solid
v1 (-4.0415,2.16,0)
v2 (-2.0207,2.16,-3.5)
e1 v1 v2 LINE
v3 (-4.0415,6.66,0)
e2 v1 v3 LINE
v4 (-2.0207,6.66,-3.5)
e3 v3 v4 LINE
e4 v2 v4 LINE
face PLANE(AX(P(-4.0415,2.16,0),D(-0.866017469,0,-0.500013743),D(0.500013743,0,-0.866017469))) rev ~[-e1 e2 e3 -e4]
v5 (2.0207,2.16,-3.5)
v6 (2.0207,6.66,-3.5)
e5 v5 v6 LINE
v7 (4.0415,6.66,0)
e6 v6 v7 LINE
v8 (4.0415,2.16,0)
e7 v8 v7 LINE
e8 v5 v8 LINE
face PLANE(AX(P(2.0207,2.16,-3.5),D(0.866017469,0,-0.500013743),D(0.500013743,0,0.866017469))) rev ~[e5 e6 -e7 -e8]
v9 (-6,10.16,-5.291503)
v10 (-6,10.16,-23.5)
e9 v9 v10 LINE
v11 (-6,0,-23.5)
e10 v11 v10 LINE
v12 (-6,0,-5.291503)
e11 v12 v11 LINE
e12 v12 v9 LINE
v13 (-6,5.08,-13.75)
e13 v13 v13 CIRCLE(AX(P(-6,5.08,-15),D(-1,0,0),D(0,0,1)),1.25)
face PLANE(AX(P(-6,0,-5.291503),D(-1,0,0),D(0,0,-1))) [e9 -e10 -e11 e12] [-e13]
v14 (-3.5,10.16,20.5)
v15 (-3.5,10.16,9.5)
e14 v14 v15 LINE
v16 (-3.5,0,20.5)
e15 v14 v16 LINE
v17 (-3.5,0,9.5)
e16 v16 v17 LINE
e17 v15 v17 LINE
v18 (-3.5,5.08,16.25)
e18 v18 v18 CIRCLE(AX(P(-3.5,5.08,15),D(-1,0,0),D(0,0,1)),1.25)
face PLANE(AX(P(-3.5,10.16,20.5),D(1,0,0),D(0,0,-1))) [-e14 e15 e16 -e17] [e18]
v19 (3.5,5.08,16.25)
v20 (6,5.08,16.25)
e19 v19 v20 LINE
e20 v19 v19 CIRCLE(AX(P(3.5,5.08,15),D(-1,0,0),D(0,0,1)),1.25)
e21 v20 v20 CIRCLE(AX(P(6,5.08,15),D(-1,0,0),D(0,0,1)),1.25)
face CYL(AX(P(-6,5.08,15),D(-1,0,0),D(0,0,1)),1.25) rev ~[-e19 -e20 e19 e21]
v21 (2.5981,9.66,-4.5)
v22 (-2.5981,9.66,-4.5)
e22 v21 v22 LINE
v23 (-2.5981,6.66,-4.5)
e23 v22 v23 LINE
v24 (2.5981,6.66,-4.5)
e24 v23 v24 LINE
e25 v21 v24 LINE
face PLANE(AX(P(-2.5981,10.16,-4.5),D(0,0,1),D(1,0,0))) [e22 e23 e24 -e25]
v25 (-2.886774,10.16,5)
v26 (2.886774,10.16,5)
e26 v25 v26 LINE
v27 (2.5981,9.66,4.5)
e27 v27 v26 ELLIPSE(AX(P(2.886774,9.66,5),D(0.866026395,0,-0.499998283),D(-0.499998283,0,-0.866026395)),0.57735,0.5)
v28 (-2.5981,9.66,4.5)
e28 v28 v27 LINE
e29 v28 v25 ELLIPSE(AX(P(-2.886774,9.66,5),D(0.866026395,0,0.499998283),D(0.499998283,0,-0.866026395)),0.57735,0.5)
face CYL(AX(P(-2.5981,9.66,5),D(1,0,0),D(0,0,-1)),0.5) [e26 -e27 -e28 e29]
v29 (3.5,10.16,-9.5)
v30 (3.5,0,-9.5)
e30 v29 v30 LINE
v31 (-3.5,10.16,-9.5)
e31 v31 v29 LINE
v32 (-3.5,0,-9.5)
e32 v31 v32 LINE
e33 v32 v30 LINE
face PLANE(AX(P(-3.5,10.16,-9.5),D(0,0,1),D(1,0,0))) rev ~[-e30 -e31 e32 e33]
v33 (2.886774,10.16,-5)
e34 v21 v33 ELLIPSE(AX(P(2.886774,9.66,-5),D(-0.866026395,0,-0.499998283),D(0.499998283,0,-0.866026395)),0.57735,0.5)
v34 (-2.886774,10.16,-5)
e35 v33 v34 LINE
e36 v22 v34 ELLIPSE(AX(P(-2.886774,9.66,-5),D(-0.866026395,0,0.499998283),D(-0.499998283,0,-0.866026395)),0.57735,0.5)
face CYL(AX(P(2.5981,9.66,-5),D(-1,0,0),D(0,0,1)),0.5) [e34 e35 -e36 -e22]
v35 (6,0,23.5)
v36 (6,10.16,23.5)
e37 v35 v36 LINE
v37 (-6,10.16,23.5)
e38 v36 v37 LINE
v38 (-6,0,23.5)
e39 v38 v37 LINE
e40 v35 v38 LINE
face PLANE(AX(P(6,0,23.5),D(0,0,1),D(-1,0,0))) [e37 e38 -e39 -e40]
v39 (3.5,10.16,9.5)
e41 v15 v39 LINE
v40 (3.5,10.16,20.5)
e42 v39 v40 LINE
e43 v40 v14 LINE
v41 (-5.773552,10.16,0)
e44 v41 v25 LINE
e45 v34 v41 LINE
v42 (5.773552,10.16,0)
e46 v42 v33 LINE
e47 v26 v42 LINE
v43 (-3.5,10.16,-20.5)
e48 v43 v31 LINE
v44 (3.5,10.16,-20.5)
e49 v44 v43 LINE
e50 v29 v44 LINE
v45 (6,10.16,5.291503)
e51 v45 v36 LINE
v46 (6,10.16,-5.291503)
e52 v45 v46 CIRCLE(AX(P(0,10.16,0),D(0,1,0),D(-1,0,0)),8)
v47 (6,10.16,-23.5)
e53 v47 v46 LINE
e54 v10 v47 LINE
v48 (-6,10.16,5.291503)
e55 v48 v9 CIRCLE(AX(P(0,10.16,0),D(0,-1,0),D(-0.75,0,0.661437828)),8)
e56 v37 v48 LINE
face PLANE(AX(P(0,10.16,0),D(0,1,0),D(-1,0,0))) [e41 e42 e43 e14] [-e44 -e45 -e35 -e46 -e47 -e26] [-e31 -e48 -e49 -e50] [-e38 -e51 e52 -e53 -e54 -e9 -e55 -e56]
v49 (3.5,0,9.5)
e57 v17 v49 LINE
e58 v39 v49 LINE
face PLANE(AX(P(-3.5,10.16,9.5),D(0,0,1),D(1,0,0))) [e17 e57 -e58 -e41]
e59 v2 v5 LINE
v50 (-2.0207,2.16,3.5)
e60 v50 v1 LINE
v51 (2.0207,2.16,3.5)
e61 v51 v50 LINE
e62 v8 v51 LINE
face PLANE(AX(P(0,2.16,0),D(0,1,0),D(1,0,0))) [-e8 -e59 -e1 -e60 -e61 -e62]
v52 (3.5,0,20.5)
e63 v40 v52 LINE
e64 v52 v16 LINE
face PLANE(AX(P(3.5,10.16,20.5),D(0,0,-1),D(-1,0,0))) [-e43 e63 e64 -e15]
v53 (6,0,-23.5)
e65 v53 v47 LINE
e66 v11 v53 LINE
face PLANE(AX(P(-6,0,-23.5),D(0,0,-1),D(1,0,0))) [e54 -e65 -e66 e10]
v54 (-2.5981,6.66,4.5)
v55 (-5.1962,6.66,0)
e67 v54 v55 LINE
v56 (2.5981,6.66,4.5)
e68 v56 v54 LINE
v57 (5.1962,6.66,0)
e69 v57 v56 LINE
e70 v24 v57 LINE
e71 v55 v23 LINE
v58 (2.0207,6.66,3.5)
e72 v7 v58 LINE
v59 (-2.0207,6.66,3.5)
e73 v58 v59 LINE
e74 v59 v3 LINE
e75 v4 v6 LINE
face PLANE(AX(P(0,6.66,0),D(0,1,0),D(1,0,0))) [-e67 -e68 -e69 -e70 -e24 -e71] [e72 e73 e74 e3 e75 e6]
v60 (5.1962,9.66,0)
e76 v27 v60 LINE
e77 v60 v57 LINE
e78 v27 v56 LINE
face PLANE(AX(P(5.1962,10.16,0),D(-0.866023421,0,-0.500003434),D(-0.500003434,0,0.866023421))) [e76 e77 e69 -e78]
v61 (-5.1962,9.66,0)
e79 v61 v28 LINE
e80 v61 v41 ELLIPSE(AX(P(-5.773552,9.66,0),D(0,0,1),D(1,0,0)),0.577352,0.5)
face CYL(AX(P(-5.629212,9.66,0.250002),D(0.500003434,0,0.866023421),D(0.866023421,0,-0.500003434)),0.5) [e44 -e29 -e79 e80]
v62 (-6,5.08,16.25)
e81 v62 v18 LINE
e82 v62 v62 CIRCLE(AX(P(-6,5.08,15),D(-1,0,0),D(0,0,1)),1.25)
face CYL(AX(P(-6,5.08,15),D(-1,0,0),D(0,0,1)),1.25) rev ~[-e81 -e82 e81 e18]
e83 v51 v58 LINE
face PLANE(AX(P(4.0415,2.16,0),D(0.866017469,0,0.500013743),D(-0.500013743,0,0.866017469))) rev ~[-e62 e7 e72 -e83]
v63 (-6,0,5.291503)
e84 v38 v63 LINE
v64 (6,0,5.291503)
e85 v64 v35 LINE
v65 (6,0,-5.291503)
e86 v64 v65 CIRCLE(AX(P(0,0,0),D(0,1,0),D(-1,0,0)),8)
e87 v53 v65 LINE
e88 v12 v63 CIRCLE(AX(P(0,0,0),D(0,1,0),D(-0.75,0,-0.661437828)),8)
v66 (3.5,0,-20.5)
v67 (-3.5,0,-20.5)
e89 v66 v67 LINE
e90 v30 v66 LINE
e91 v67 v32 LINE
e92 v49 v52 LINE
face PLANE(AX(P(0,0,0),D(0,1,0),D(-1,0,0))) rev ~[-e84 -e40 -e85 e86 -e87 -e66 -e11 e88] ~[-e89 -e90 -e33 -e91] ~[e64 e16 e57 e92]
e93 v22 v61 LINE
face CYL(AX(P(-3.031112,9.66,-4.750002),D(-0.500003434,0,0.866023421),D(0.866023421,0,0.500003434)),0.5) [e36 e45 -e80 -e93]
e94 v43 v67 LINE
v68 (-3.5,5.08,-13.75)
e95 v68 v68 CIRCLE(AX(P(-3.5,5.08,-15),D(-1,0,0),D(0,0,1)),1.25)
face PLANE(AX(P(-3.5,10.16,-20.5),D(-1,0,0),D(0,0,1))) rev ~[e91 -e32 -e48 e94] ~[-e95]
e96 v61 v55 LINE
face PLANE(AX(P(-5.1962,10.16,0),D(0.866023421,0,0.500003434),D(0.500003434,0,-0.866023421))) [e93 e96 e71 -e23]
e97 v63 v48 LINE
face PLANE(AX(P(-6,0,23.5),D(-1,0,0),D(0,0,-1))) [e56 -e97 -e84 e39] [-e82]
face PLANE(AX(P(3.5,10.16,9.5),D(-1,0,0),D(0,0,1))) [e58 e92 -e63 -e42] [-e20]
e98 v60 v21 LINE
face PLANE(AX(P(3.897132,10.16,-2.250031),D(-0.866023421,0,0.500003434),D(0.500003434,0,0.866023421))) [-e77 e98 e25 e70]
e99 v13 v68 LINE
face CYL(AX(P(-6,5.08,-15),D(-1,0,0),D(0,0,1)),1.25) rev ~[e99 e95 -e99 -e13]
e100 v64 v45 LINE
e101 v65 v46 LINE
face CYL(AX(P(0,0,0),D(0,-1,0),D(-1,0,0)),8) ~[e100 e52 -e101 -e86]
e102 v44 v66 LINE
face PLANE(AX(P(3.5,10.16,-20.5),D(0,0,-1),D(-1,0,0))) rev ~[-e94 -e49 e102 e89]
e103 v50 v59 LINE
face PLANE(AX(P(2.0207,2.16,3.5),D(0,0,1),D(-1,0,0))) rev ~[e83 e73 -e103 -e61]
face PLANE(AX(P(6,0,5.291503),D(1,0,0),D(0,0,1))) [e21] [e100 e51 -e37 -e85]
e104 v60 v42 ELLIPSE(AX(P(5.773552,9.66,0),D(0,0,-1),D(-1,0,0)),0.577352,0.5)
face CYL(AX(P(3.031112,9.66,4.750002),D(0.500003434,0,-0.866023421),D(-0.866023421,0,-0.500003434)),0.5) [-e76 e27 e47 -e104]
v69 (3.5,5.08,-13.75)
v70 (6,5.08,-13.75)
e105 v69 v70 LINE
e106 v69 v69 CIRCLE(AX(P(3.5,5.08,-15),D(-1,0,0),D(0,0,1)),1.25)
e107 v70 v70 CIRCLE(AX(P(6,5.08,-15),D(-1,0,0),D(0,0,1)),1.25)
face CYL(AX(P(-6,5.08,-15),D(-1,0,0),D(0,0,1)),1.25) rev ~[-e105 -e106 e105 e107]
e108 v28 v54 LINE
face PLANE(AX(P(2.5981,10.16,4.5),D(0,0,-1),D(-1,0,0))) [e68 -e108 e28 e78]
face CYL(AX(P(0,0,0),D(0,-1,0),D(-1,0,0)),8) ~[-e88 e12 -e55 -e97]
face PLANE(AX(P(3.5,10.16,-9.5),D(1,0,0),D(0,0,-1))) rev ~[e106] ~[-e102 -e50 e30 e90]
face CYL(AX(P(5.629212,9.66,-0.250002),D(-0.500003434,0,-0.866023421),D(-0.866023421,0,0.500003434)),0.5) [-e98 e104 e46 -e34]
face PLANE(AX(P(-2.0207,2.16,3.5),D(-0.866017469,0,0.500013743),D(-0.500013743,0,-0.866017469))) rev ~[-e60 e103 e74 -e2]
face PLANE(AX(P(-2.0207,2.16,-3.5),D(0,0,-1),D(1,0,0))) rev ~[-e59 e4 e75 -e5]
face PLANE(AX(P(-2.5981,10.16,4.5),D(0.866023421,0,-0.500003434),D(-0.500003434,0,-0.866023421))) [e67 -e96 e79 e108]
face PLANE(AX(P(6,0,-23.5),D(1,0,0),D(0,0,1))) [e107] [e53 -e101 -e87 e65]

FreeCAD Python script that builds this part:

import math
import FreeCAD as App
import Part
import Sketcher
from FreeCAD import Vector
Q = App.Units.Quantity


def edges_at(feature, points):
    """Names of the edges that pass closest to the given points."""
    edges = feature.Shape.Edges
    near = lambda p: min(range(len(edges)), key=lambda i: edges[i].distToShape(Part.Vertex(*p))[0])
    return sorted({f"Edge{near(p) + 1}" for p in points})

doc = App.newDocument("Part")
body = doc.addObject("PartDesign::Body", "Body")

sketch1 = body.newObject("Sketcher::SketchObject", "Sketch")
sketch1.AttachmentSupport = (doc.getObject("XZ_Plane"), [""])
sketch1.MapMode = "FlatFace"
sketch1.addGeometry(Part.Circle(Vector(0, 0, 0), Vector(0, 0, 1), 8), False)
sketch1.addConstraint([
    Sketcher.Constraint("Coincident", 0, 3, -1, 1),
    Sketcher.Constraint("Diameter", 0, 16.0),
])
pad1 = body.newObject("PartDesign::Pad", "Pad")
pad1.Profile = sketch1
pad1.Length = 10.16
pad1.Reversed = True

sketch2 = body.newObject("Sketcher::SketchObject", "Sketch001")
sketch2.AttachmentSupport = (doc.getObject("XZ_Plane"), [""])
sketch2.MapMode = "FlatFace"
sketch2.addGeometry([
    Part.LineSegment(Vector(6, 5.291503, 0), Vector(6, 23.5, 0)),
    Part.LineSegment(Vector(6, 23.5, 0), Vector(-6, 23.5, 0)),
    Part.LineSegment(Vector(-6, 23.5, 0), Vector(-6, 5.291503, 0)),
    Part.ArcOfCircle(Part.Circle(Vector(0, 0, 0), Vector(0, 0, 1), 8), math.radians(41.409622), math.radians(138.590378)),
    Part.LineSegment(Vector(6, -23.5, 0), Vector(6, -5.291503, 0)),
    Part.ArcOfCircle(Part.Circle(Vector(0, 0, 0), Vector(0, 0, 1), 8), math.radians(-138.590378), math.radians(-41.409622)),
    Part.LineSegment(Vector(-6, -5.291503, 0), Vector(-6, -23.5, 0)),
    Part.LineSegment(Vector(-6, -23.5, 0), Vector(6, -23.5, 0)),
], False)
sketch2.addConstraint([
    Sketcher.Constraint("Coincident", 0, 2, 1, 1),
    Sketcher.Constraint("Coincident", 1, 2, 2, 1),
    Sketcher.Constraint("Coincident", 2, 2, 3, 2),
    Sketcher.Constraint("Coincident", 3, 1, 0, 1),
    Sketcher.Constraint("Coincident", 4, 2, 5, 2),
    Sketcher.Constraint("Coincident", 5, 1, 6, 1),
    Sketcher.Constraint("Coincident", 6, 2, 7, 1),
    Sketcher.Constraint("Coincident", 7, 2, 4, 1),
    Sketcher.Constraint("Vertical", 0),
    Sketcher.Constraint("Horizontal", 1),
    Sketcher.Constraint("Vertical", 2),
    Sketcher.Constraint("Vertical", 4),
    Sketcher.Constraint("Vertical", 6),
    Sketcher.Constraint("Horizontal", 7),
    Sketcher.Constraint("Coincident", 3, 3, -1, 1),
    Sketcher.Constraint("Coincident", 5, 3, -1, 1),
    Sketcher.Constraint("Equal", 3, 5),
    Sketcher.Constraint("Symmetric", 0, 2, 6, 2, -1, 1),
    Sketcher.Constraint("Horizontal", 2, 2, 3, 1),
    Sketcher.Constraint("Horizontal", 4, 2, 5, 1),
    Sketcher.Constraint("DistanceX", -1, 1, 0, 2, 6.0),
    Sketcher.Constraint("Radius", 3, 8.0),
    Sketcher.Constraint("DistanceY", -1, 1, 0, 2, 23.5),
])
pad2 = body.newObject("PartDesign::Pad", "Pad001")
pad2.Profile = sketch2
pad2.Length = 10.16
pad2.Reversed = True

sketch3 = body.newObject("Sketcher::SketchObject", "Sketch002")
sketch3.AttachmentSupport = (doc.getObject("XZ_Plane"), [""])
sketch3.MapMode = "FlatFace"
sketch3.AttachmentOffset = App.Placement(Vector(0, 0, -10.16), App.Rotation())
sketch3.addGeometry([
    Part.LineSegment(Vector(5.1962, 0, 0), Vector(2.5981, -4.5, 0)),
    Part.LineSegment(Vector(2.5981, -4.5, 0), Vector(-2.5981, -4.5, 0)),
    Part.LineSegment(Vector(-2.5981, -4.5, 0), Vector(-5.1962, 0, 0)),
    Part.LineSegment(Vector(-5.1962, 0, 0), Vector(-2.5981, 4.5, 0)),
    Part.LineSegment(Vector(-2.5981, 4.5, 0), Vector(2.5981, 4.5, 0)),
    Part.LineSegment(Vector(2.5981, 4.5, 0), Vector(5.1962, 0, 0)),
], False)
sketch3.addConstraint([
    Sketcher.Constraint("Coincident", 0, 2, 1, 1),
    Sketcher.Constraint("Coincident", 1, 2, 2, 1),
    Sketcher.Constraint("Coincident", 2, 2, 3, 1),
    Sketcher.Constraint("Coincident", 3, 2, 4, 1),
    Sketcher.Constraint("Coincident", 4, 2, 5, 1),
    Sketcher.Constraint("Coincident", 5, 2, 0, 1),
    Sketcher.Constraint("Horizontal", 1),
    Sketcher.Constraint("Horizontal", 4),
    Sketcher.Constraint("Symmetric", 0, 2, 3, 2, -1, 1),
    Sketcher.Constraint("Symmetric", 2, 2, 5, 2, -1, 1),
    Sketcher.Constraint("PointOnObject", 2, 2, -1),
    Sketcher.Constraint("Parallel", 2, 5),
    Sketcher.Constraint("Vertical", 1, 2, 3, 2),
    Sketcher.Constraint("DistanceY", 1, 2, 3, 2, 9.0),
    Sketcher.Constraint("Angle", 0, Q("-120.0002 deg")),
    Sketcher.Constraint("DistanceX", 1, 2, 1, 1, 5.1962),
])
pocket1 = body.newObject("PartDesign::Pocket", "Pocket")
pocket1.Profile = sketch3
pocket1.Length = 8
pocket1.Reversed = True

sketch4 = body.newObject("Sketcher::SketchObject", "Sketch003")
sketch4.AttachmentSupport = (doc.getObject("XZ_Plane"), [""])
sketch4.MapMode = "FlatFace"
sketch4.AttachmentOffset = App.Placement(Vector(0, 0, -2.16), App.Rotation())
sketch4.addGeometry([
    Part.LineSegment(Vector(2.5981, -4.5, 0), Vector(-2.5981, -4.5, 0)),
    Part.LineSegment(Vector(-2.5981, -4.5, 0), Vector(-5.1962, 0, 0)),
    Part.LineSegment(Vector(-5.1962, 0, 0), Vector(-2.5981, 4.5, 0)),
    Part.LineSegment(Vector(-2.5981, 4.5, 0), Vector(2.5981, 4.5, 0)),
    Part.LineSegment(Vector(2.5981, 4.5, 0), Vector(5.1962, 0, 0)),
    Part.LineSegment(Vector(5.1962, 0, 0), Vector(2.5981, -4.5, 0)),
    Part.LineSegment(Vector(-2.0207, -3.5, 0), Vector(2.0207, -3.5, 0)),
    Part.LineSegment(Vector(2.0207, -3.5, 0), Vector(4.0415, 0, 0)),
    Part.LineSegment(Vector(4.0415, 0, 0), Vector(2.0207, 3.5, 0)),
    Part.LineSegment(Vector(2.0207, 3.5, 0), Vector(-2.0207, 3.5, 0)),
    Part.LineSegment(Vector(-2.0207, 3.5, 0), Vector(-4.0415, 0, 0)),
    Part.LineSegment(Vector(-4.0415, 0, 0), Vector(-2.0207, -3.5, 0)),
], False)
sketch4.addConstraint([
    Sketcher.Constraint("Coincident", 0, 2, 1, 1),
    Sketcher.Constraint("Coincident", 1, 2, 2, 1),
    Sketcher.Constraint("Coincident", 2, 2, 3, 1),
    Sketcher.Constraint("Coincident", 3, 2, 4, 1),
    Sketcher.Constraint("Coincident", 4, 2, 5, 1),
    Sketcher.Constraint("Coincident", 5, 2, 0, 1),
    Sketcher.Constraint("Coincident", 6, 2, 7, 1),
    Sketcher.Constraint("Coincident", 7, 2, 8, 1),
    Sketcher.Constraint("Coincident", 8, 2, 9, 1),
    Sketcher.Constraint("Coincident", 9, 2, 10, 1),
    Sketcher.Constraint("Coincident", 10, 2, 11, 1),
    Sketcher.Constraint("Coincident", 11, 2, 6, 1),
    Sketcher.Constraint("Horizontal", 0),
    Sketcher.Constraint("Horizontal", 3),
    Sketcher.Constraint("Horizontal", 6),
    Sketcher.Constraint("Horizontal", 9),
    Sketcher.Constraint("Symmetric", 0, 2, 3, 2, -1, 1),
    Sketcher.Constraint("Symmetric", 1, 2, 4, 2, -1, 1),
    Sketcher.Constraint("Symmetric", 6, 2, 9, 2, -1, 1),
    Sketcher.Constraint("Symmetric", 7, 2, 10, 2, -1, 1),
    Sketcher.Constraint("PointOnObject", 1, 2, -1),
    Sketcher.Constraint("PointOnObject", 7, 2, -1),
    Sketcher.Constraint("Parallel", 2, 5),
    Sketcher.Constraint("Parallel", 5, 7),
    Sketcher.Constraint("Parallel", 4, 8),
    Sketcher.Constraint("Parallel", 8, 11),
    Sketcher.Constraint("Vertical", 0, 2, 2, 2),
    Sketcher.Constraint("DistanceY", 5, 2, 6, 2, 1.0),
    Sketcher.Constraint("Angle", 1, Q("120.0002 deg")),
    Sketcher.Constraint("DistanceY", 0, 2, 2, 2, 9.0),
    Sketcher.Constraint("DistanceX", 0, 2, 0, 1, 5.1962),
    Sketcher.Constraint("DistanceX", 6, 1, 6, 2, 4.0414),
])
pad3 = body.newObject("PartDesign::Pad", "Pad002")
pad3.Profile = sketch4
pad3.Length = 4.5
pad3.Reversed = True
doc.recompute()

fillet = body.newObject("PartDesign::Fillet", "Fillet")
fillet.Base = (pad3, edges_at(pad3, [
    (3.897, 10.16, -2.25),
    (3.897, 10.16, 2.25),
    (0, 10.16, -4.5),
    (0, 10.16, 4.5),
    (-3.897, 10.16, 2.25),
    (-3.897, 10.16, -2.25),
]))
fillet.Radius = 0.5

sketch5 = body.newObject("Sketcher::SketchObject", "Sketch004")
sketch5.AttachmentSupport = (doc.getObject("XZ_Plane"), [""])
sketch5.MapMode = "FlatFace"
sketch5.AttachmentOffset = App.Placement(Vector(0, 0, -10.16), App.Rotation())
sketch5.addGeometry([
    Part.LineSegment(Vector(3.5, 9.5, 0), Vector(-3.5, 9.5, 0)),
    Part.LineSegment(Vector(-3.5, 9.5, 0), Vector(-3.5, 20.5, 0)),
    Part.LineSegment(Vector(-3.5, 20.5, 0), Vector(3.5, 20.5, 0)),
    Part.LineSegment(Vector(3.5, 20.5, 0), Vector(3.5, 9.5, 0)),
    Part.LineSegment(Vector(-3.5, -20.5, 0), Vector(-3.5, -9.5, 0)),
    Part.LineSegment(Vector(-3.5, -9.5, 0), Vector(3.5, -9.5, 0)),
    Part.LineSegment(Vector(3.5, -9.5, 0), Vector(3.5, -20.5, 0)),
    Part.LineSegment(Vector(3.5, -20.5, 0), Vector(-3.5, -20.5, 0)),
], False)
sketch5.addConstraint([
    Sketcher.Constraint("Coincident", 0, 2, 1, 1),
    Sketcher.Constraint("Coincident", 1, 2, 2, 1),
    Sketcher.Constraint("Coincident", 2, 2, 3, 1),
    Sketcher.Constraint("Coincident", 3, 2, 0, 1),
    Sketcher.Constraint("Coincident", 4, 2, 5, 1),
    Sketcher.Constraint("Coincident", 5, 2, 6, 1),
    Sketcher.Constraint("Coincident", 6, 2, 7, 1),
    Sketcher.Constraint("Coincident", 7, 2, 4, 1),
    Sketcher.Constraint("Horizontal", 0),
    Sketcher.Constraint("Vertical", 1),
    Sketcher.Constraint("Horizontal", 2),
    Sketcher.Constraint("Vertical", 3),
    Sketcher.Constraint("Vertical", 4),
    Sketcher.Constraint("Horizontal", 5),
    Sketcher.Constraint("Vertical", 6),
    Sketcher.Constraint("Horizontal", 7),
    Sketcher.Constraint("Symmetric", 3, 2, 4, 2, -1, 1),
    Sketcher.Constraint("Symmetric", 1, 2, 6, 2, -1, 1),
    Sketcher.Constraint("Vertical", 1, 2, 4, 2),
    Sketcher.Constraint("DistanceX", 0, 2, 0, 1, 7.0),
    Sketcher.Constraint("DistanceY", 1, 1, 1, 2, 11.0),
    Sketcher.Constraint("DistanceY", 4, 2, 0, 2, 19.0),
])
pocket2 = body.newObject("PartDesign::Pocket", "Pocket001")
pocket2.Profile = sketch5
pocket2.Length = 10.16
pocket2.Reversed = True

sketch6 = body.newObject("Sketcher::SketchObject", "Sketch005")
sketch6.AttachmentSupport = (doc.getObject("YZ_Plane"), [""])
sketch6.MapMode = "FlatFace"
sketch6.AttachmentOffset = App.Placement(Vector(0, 0, -6), App.Rotation())
sketch6.addGeometry([
    Part.Circle(Vector(5.08, 15, 0), Vector(0, 0, 1), 1.25),
    Part.Circle(Vector(5.08, -15, 0), Vector(0, 0, 1), 1.25),
], False)
sketch6.addConstraint([
    Sketcher.Constraint("Equal", 0, 1),
    Sketcher.Constraint("Symmetric", 0, 3, 1, 3, -1),
    Sketcher.Constraint("Diameter", 0, 2.5),
    Sketcher.Constraint("DistanceY", -1, 1, 0, 3, 15.0),
    Sketcher.Constraint("DistanceX", -1, 1, 0, 3, 5.08),
])
pocket3 = body.newObject("PartDesign::Pocket", "Pocket002")
pocket3.Profile = sketch6
pocket3.Length = 12
pocket3.Reversed = True

doc.recompute()
